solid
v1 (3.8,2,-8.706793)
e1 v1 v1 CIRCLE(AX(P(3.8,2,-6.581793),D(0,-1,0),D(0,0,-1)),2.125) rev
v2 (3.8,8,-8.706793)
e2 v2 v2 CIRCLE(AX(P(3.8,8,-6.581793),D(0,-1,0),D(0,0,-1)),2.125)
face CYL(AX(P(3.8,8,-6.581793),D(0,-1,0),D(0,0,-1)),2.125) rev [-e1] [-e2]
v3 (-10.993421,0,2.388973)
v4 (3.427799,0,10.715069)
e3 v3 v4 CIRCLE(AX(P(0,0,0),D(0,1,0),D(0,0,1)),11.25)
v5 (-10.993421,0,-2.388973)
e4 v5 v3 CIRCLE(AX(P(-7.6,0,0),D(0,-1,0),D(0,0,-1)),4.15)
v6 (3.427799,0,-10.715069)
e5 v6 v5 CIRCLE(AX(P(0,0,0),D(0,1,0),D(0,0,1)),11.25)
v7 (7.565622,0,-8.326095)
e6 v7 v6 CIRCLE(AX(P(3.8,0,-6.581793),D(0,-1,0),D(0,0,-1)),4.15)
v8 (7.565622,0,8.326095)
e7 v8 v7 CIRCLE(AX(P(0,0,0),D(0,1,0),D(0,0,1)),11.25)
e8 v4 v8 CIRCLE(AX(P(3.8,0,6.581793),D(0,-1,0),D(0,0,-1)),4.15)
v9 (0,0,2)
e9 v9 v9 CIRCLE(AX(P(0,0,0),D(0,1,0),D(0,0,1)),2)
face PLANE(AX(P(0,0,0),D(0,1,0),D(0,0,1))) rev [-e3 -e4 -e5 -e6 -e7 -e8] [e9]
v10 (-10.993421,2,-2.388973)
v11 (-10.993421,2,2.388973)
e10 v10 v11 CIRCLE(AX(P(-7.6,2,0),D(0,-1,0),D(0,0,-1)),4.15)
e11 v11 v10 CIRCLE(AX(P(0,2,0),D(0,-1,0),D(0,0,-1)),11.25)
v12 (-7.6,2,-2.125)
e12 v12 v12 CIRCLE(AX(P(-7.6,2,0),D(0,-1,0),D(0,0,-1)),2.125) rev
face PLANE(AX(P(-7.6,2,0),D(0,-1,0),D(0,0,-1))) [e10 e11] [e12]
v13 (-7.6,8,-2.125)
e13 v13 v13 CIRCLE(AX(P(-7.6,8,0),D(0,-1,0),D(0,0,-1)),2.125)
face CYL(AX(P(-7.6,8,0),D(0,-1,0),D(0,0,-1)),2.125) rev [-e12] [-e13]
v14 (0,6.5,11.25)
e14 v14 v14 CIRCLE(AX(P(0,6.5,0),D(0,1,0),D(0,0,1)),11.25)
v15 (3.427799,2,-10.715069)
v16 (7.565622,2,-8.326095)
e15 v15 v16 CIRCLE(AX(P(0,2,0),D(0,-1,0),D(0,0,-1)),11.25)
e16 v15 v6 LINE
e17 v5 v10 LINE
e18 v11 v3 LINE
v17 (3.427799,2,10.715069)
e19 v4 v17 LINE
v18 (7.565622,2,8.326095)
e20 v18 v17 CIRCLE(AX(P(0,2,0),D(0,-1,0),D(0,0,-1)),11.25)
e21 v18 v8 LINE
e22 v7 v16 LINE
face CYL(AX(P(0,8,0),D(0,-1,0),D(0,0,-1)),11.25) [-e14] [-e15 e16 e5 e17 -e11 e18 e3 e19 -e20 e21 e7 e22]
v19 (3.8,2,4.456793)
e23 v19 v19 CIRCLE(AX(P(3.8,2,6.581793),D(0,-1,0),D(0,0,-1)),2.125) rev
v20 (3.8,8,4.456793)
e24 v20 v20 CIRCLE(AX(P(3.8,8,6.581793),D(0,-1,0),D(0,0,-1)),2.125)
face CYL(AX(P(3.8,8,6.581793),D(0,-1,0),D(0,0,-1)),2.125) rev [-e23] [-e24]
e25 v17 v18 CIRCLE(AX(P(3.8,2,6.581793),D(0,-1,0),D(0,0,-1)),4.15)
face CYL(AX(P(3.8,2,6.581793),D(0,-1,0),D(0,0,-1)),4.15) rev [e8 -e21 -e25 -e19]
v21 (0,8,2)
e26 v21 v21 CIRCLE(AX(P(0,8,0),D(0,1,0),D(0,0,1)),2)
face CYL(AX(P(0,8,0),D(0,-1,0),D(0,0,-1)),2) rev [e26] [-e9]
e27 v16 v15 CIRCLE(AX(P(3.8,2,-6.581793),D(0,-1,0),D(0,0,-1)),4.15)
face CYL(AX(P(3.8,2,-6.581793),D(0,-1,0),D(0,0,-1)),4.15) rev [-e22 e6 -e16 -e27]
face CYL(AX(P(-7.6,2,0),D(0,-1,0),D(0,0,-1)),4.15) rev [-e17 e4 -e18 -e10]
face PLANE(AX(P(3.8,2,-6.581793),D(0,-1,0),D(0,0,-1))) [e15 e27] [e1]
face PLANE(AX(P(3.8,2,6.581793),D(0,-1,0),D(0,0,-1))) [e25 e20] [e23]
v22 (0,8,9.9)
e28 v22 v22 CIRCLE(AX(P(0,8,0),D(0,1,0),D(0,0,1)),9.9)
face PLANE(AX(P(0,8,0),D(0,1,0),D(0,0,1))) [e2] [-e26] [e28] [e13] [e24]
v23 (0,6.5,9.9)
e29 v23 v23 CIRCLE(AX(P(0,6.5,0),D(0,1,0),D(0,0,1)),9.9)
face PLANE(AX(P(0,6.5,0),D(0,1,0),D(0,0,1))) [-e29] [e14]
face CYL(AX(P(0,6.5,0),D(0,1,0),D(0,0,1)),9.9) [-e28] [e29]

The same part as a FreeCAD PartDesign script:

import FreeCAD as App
import Part
import Sketcher

doc = App.newDocument("Part")
body = doc.addObject("PartDesign::Body", "Body")

# Sketch on XZ plane
sketch1 = body.newObject("Sketcher::SketchObject", "Sketch")
sketch1.AttachmentSupport = (doc.getObject("XZ_Plane"), [""])
sketch1.MapMode = "FlatFace"
sketch1.addGeometry([
    Part.Circle(App.Vector(0, 0, 0), App.Vector(0, 0, 1), 11.2),
    Part.Circle(App.Vector(0, 0, 0), App.Vector(0, 0, 1), 2),
], False)
sketch1.addConstraint([
    Sketcher.Constraint("Coincident", 0, 3, -1, 1),
    Sketcher.Constraint("Coincident", 1, 3, -1, 1),
    Sketcher.Constraint("Diameter", 1, 4.0),
    Sketcher.Constraint("Diameter", 0, 22.5),
])
pad1 = body.newObject("PartDesign::Pad", "Pad")
pad1.Profile = sketch1
pad1.Length = 8
pad1.Reversed = True

# Sketch on XZ plane
sketch2 = body.newObject("Sketcher::SketchObject", "Sketch001")
sketch2.AttachmentSupport = (doc.getObject("XZ_Plane"), [""])
sketch2.MapMode = "FlatFace"
sketch2.addGeometry([
    Part.Circle(App.Vector(-7.6, 0, 0), App.Vector(0, 0, 1), 2.1),
    Part.Circle(App.Vector(3.8, 6.6, 0), App.Vector(0, 0, 1), 2.1),
    Part.Circle(App.Vector(3.8, -6.6, 0), App.Vector(0, 0, 1), 2.1),
], False)
sketch2.addConstraint([
    Sketcher.Constraint("Equal", 0, 1),
    Sketcher.Constraint("Equal", 1, 2),
    Sketcher.Constraint("Symmetric", 1, 3, 2, 3, -1),
    Sketcher.Constraint("PointOnObject", 0, 3, -1),
    Sketcher.Constraint("Diameter", 0, 4.25),
    Sketcher.Constraint("DistanceX", 0, 3, -1, 1, 7.6),
    Sketcher.Constraint("DistanceX", -1, 1, 1, 3, 3.8),
    Sketcher.Constraint("DistanceY", -1, 1, 1, 3, 6.581793),
])
pocket1 = body.newObject("PartDesign::Pocket", "Pocket")
pocket1.Profile = sketch2
pocket1.Type = "ThroughAll"

# Sketch on XZ plane
sketch3 = body.newObject("Sketcher::SketchObject", "Sketch002")
sketch3.AttachmentSupport = (doc.getObject("XZ_Plane"), [""])
sketch3.MapMode = "FlatFace"
sketch3.addGeometry([
    Part.Circle(App.Vector(-7.6, 0, 0), App.Vector(0, 0, 1), 4.2),
    Part.Circle(App.Vector(3.8, 6.6, 0), App.Vector(0, 0, 1), 4.2),
    Part.Circle(App.Vector(3.8, -6.6, 0), App.Vector(0, 0, 1), 4.2),
], False)
sketch3.addConstraint([
    Sketcher.Constraint("Equal", 0, 1),
    Sketcher.Constraint("Equal", 1, 2),
    Sketcher.Constraint("Symmetric", 1, 3, 2, 3, -1),
    Sketcher.Constraint("PointOnObject", 0, 3, -1),
    Sketcher.Constraint("Diameter", 0, 8.3),
    Sketcher.Constraint("DistanceX", 0, 3, -1, 1, 7.6),
    Sketcher.Constraint("DistanceX", -1, 1, 1, 3, 3.8),
    Sketcher.Constraint("DistanceY", -1, 1, 1, 3, 6.581793),
])
pocket2 = body.newObject("PartDesign::Pocket", "Pocket001")
pocket2.Profile = sketch3
pocket2.Length = 2

# Sketch on XZ plane
sketch4 = body.newObject("Sketcher::SketchObject", "Sketch003")
sketch4.AttachmentSupport = (doc.getObject("XZ_Plane"), [""])
sketch4.MapMode = "FlatFace"
sketch4.AttachmentOffset = App.Placement(App.Vector(0, 0, -6.5), App.Rotation())
sketch4.addGeometry([
    Part.Circle(App.Vector(0, 0, 0), App.Vector(0, 0, 1), 11),
    Part.Circle(App.Vector(0, 0, 0), App.Vector(0, 0, 1), 10),
], False)
sketch4.addConstraint([
    Sketcher.Constraint("Coincident", 0, 3, -1, 1),
    Sketcher.Constraint("Coincident", 1, 3, -1, 1),
    Sketcher.Constraint("Diameter", 0, 22.5),
    Sketcher.Constraint("Diameter", 1, 19.8),
])
pocket3 = body.newObject("PartDesign::Pocket", "Pocket002")
pocket3.Profile = sketch4
pocket3.Length = 1.5

doc.recompute()
